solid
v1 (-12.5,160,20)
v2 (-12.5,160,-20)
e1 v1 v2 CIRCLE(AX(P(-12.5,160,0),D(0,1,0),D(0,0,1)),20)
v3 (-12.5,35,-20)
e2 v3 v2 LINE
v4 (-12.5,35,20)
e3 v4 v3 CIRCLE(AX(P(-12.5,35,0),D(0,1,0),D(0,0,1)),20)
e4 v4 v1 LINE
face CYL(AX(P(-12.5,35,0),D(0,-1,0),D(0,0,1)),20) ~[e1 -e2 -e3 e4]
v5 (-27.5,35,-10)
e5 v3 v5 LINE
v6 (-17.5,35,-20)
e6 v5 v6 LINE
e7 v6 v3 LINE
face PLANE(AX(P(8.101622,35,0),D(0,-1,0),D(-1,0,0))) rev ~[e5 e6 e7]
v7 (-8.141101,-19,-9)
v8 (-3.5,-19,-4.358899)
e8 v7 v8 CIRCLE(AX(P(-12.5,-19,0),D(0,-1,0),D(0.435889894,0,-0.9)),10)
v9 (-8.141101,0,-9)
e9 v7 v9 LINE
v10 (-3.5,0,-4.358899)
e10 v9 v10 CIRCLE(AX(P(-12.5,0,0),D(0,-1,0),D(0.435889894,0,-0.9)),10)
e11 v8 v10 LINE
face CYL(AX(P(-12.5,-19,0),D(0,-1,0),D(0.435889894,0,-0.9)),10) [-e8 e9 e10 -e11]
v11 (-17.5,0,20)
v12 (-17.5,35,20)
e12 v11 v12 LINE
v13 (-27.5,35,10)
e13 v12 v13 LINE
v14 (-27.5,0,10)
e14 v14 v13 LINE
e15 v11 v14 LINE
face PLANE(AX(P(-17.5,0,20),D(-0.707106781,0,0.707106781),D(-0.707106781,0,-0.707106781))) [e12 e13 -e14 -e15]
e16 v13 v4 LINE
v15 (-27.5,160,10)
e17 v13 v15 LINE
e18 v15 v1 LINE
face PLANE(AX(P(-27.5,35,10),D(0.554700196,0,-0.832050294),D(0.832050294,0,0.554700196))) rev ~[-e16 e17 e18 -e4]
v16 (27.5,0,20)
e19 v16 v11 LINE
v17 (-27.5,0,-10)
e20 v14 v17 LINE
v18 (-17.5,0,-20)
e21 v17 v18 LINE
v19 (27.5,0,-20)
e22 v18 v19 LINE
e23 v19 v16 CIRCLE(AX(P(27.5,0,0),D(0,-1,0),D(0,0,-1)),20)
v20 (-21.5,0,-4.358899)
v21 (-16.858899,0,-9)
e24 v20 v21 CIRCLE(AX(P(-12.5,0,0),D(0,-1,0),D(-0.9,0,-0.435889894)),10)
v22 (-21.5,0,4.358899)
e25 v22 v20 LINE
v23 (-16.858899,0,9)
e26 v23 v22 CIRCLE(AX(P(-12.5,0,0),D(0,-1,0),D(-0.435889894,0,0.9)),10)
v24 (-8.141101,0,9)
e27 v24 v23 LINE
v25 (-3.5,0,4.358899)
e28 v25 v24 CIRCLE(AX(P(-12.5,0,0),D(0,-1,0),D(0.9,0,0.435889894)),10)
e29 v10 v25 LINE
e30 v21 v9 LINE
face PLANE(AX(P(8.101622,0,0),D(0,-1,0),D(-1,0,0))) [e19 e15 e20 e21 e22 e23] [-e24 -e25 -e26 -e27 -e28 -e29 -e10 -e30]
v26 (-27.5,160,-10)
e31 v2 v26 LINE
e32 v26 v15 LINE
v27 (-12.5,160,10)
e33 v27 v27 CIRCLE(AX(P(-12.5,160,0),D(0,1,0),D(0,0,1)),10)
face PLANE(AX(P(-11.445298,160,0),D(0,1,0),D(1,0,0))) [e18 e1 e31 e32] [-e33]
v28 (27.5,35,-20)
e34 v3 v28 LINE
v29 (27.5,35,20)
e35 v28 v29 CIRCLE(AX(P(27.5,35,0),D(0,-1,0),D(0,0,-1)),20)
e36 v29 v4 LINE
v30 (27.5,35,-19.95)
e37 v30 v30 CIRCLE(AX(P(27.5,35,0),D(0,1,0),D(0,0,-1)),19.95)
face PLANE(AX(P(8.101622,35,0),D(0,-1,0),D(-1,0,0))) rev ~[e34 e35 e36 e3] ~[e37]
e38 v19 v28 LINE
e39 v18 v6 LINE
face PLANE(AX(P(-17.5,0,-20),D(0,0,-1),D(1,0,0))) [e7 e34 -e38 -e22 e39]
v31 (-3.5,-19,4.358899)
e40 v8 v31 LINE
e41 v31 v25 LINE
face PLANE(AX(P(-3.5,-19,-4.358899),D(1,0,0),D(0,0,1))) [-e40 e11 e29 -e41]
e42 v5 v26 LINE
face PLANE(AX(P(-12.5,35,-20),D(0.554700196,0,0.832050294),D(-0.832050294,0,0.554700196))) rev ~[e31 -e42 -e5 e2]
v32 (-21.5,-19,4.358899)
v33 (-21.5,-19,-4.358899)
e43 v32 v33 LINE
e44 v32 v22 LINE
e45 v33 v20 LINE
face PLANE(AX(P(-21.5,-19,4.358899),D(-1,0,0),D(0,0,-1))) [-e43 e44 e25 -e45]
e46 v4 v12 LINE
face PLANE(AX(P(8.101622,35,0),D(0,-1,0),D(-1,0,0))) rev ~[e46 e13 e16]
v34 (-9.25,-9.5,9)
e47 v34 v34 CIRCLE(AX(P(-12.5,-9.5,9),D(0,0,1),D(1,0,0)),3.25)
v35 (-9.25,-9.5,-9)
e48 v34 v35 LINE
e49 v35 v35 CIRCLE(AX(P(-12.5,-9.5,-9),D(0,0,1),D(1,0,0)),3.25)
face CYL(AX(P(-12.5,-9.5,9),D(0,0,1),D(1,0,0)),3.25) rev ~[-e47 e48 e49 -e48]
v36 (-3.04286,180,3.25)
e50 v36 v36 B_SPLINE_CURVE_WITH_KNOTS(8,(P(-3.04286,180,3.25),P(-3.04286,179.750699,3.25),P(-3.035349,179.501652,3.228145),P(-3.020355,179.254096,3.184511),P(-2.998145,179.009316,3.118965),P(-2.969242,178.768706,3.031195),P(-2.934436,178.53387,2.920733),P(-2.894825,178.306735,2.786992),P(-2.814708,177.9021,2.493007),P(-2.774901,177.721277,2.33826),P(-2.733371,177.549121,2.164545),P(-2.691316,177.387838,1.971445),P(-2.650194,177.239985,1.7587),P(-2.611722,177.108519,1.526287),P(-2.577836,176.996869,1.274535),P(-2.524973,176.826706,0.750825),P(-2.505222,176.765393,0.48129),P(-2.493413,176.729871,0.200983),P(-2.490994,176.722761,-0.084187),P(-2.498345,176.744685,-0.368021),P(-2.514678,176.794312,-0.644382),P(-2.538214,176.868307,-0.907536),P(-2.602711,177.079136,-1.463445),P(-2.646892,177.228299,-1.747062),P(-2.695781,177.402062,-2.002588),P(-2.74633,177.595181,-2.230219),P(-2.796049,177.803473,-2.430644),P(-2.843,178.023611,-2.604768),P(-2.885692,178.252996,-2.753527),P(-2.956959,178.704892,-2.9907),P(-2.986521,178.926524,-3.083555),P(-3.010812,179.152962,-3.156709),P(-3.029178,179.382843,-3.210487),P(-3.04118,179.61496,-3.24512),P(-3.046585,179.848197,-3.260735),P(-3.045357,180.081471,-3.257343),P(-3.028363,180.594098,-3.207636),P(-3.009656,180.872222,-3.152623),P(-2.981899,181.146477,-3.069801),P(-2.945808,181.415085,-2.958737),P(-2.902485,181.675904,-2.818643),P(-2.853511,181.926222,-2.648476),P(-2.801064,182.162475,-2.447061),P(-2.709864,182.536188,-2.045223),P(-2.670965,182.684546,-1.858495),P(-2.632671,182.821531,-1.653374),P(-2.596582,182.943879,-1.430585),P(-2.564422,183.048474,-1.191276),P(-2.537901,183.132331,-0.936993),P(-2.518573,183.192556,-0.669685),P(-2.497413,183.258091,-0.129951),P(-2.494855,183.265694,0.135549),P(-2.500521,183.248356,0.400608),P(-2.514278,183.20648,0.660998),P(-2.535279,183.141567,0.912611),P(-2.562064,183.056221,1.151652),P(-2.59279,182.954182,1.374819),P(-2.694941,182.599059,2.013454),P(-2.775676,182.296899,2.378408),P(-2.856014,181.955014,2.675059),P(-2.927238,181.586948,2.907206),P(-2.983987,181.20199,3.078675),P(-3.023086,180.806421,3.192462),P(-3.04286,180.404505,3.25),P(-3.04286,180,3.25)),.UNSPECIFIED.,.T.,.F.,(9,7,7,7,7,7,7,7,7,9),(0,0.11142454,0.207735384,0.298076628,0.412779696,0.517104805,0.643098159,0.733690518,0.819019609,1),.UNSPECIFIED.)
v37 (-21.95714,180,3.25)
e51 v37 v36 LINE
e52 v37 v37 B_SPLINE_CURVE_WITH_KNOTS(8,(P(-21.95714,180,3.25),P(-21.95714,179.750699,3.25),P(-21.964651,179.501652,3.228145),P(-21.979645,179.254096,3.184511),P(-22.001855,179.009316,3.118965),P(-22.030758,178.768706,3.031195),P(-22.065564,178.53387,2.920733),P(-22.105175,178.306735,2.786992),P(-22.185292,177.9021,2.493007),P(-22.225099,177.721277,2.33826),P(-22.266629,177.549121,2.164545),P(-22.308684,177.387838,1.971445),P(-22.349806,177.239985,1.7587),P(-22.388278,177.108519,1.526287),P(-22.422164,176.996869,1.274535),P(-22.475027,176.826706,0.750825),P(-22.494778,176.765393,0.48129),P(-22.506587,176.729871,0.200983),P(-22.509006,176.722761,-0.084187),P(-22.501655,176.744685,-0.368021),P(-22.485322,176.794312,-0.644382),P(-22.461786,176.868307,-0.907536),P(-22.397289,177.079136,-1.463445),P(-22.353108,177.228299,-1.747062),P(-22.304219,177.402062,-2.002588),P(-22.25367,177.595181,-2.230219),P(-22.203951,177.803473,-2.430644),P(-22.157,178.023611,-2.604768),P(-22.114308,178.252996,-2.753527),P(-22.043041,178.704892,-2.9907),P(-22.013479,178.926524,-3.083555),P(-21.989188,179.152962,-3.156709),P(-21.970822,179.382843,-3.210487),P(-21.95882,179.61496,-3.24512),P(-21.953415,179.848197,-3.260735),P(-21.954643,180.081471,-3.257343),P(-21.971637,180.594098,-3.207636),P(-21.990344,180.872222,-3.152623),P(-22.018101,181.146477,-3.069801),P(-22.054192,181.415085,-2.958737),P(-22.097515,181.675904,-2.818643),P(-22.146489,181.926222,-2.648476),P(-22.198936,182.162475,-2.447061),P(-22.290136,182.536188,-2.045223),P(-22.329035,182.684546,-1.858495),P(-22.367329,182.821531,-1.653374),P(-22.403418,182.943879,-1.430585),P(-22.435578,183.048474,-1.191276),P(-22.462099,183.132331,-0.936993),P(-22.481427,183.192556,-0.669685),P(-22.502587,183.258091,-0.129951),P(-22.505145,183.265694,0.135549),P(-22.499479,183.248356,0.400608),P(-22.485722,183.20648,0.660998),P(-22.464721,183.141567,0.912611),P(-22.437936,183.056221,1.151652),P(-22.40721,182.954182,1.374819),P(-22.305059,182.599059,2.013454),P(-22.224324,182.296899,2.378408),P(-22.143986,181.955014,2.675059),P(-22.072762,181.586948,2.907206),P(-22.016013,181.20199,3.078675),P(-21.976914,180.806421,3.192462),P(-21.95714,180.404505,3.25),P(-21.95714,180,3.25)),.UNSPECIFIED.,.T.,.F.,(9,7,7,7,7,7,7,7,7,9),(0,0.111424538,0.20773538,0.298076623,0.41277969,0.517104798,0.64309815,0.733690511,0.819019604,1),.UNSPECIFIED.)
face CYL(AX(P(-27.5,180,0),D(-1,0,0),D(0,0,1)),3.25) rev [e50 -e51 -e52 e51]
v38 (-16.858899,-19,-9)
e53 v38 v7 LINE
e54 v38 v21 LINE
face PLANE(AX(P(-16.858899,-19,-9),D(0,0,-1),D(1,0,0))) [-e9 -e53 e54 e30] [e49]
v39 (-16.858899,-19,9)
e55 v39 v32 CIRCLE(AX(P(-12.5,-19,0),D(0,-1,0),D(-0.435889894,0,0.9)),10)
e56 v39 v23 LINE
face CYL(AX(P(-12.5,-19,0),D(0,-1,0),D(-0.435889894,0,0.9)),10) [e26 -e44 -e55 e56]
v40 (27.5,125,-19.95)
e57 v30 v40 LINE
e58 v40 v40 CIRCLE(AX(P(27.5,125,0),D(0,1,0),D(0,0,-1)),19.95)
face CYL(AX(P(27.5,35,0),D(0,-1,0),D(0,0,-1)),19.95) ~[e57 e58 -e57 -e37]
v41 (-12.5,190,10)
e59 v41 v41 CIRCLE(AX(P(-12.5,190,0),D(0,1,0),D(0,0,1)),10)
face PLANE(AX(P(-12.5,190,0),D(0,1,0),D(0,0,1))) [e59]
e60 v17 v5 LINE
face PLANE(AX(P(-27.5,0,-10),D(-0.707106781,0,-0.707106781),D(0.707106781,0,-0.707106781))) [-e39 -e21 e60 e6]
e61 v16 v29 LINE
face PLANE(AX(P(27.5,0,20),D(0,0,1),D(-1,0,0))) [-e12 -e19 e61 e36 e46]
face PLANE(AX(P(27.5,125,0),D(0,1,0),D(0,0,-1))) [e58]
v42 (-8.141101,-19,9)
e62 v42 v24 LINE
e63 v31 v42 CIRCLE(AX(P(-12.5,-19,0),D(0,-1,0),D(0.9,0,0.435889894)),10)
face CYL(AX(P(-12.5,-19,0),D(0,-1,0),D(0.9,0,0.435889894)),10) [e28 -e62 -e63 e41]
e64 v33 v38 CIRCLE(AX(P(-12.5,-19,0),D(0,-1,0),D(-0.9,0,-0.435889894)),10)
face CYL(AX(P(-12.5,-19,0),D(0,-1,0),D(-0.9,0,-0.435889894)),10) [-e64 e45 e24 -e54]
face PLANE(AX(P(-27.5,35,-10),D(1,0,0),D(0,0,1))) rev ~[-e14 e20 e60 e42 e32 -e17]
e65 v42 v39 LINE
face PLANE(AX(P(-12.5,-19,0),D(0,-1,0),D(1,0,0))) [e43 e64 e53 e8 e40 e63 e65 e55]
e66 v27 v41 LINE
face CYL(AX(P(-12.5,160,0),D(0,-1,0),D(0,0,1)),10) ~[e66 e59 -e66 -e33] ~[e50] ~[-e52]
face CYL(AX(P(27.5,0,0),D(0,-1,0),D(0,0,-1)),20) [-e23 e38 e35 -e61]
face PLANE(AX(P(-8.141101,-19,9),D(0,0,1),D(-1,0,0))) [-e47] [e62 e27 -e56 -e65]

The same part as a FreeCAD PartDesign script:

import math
import FreeCAD as App
import Part
import Sketcher

doc = App.newDocument("Part")
body = doc.addObject("PartDesign::Body", "Body")

sketch1 = body.newObject("Sketcher::SketchObject", "Sketch")
sketch1.AttachmentSupport = (doc.getObject("XZ_Plane"), [""])
sketch1.MapMode = "FlatFace"
sketch1.addGeometry([
    Part.LineSegment(App.Vector(-18, -20, 0), App.Vector(-28, -10, 0)),
    Part.LineSegment(App.Vector(-28, -10, 0), App.Vector(-28, 10, 0)),
    Part.LineSegment(App.Vector(-28, 10, 0), App.Vector(-18, 20, 0)),
    Part.LineSegment(App.Vector(-18, 20, 0), App.Vector(28, 20, 0)),
    Part.ArcOfCircle(Part.Circle(App.Vector(28, 0, 0), App.Vector(0, 0, 1), 20), math.radians(-90), math.radians(90)),
    Part.LineSegment(App.Vector(28, -20, 0), App.Vector(-18, -20, 0)),
], False)
sketch1.addConstraint([
    Sketcher.Constraint("Coincident", 0, 2, 1, 1),
    Sketcher.Constraint("Coincident", 1, 2, 2, 1),
    Sketcher.Constraint("Coincident", 2, 2, 3, 1),
    Sketcher.Constraint("Tangent", 3, 2, 4, 2),
    Sketcher.Constraint("Tangent", 4, 1, 5, 1),
    Sketcher.Constraint("Coincident", 5, 2, 0, 1),
    Sketcher.Constraint("Vertical", 1),
    Sketcher.Constraint("Horizontal", 3),
    Sketcher.Constraint("Horizontal", 5),
    Sketcher.Constraint("Symmetric", 2, 2, 5, 2, -1),
    Sketcher.Constraint("Perpendicular", 0, 2),
    Sketcher.Constraint("Equal", 0, 2),
    Sketcher.Constraint("Radius", 4, 20.0),
    Sketcher.Constraint("DistanceX", 3, 1, 3, 2, 45.0),
    Sketcher.Constraint("DistanceY", 1, 1, 1, 2, 20.0),
    Sketcher.Constraint("DistanceX", -1, 1, 4, 3, 27.5),
])
pad1 = body.newObject("PartDesign::Pad", "Pad")
pad1.Profile = sketch1
pad1.Length = 35
pad1.Reversed = True

sketch2 = body.newObject("Sketcher::SketchObject", "Sketch001")
sketch2.AttachmentSupport = (doc.getObject("XZ_Plane"), [""])
sketch2.MapMode = "FlatFace"
sketch2.AttachmentOffset = App.Placement(App.Vector(0, 0, -35), App.Rotation())
sketch2.addGeometry([
    Part.LineSegment(App.Vector(-12, -20, 0), App.Vector(-28, -10, 0)),
    Part.LineSegment(App.Vector(-28, -10, 0), App.Vector(-28, 10, 0)),
    Part.LineSegment(App.Vector(-28, 10, 0), App.Vector(-12, 20, 0)),
    Part.ArcOfCircle(Part.Circle(App.Vector(-12, 0, 0), App.Vector(0, 0, 1), 20), math.radians(-90), math.radians(90)),
], False)
sketch2.addConstraint([
    Sketcher.Constraint("Coincident", 0, 2, 1, 1),
    Sketcher.Constraint("Coincident", 1, 2, 2, 1),
    Sketcher.Constraint("Coincident", 2, 2, 3, 2),
    Sketcher.Constraint("Coincident", 3, 1, 0, 1),
    Sketcher.Constraint("Vertical", 1),
    Sketcher.Constraint("Symmetric", 2, 2, 3, 1, -1),
    Sketcher.Constraint("Vertical", 3, 3, 2, 2),
    Sketcher.Constraint("Equal", 0, 2),
    Sketcher.Constraint("Radius", 3, 20.0),
    Sketcher.Constraint("DistanceY", 1, 1, 1, 2, 20.0),
    Sketcher.Constraint("DistanceX", 0, 2, 3, 3, 15.0),
    Sketcher.Constraint("DistanceX", 3, 3, -1, 1, 12.5),
])
pad2 = body.newObject("PartDesign::Pad", "Pad001")
pad2.Profile = sketch2
pad2.Length = 125
pad2.Reversed = True

sketch3 = body.newObject("Sketcher::SketchObject", "Sketch002")
sketch3.AttachmentSupport = (doc.getObject("XZ_Plane"), [""])
sketch3.MapMode = "FlatFace"
sketch3.AttachmentOffset = App.Placement(App.Vector(0, 0, -35), App.Rotation())
sketch3.addGeometry(Part.Circle(App.Vector(28, 0, 0), App.Vector(0, 0, 1), 20), False)
sketch3.addConstraint([
    Sketcher.Constraint("PointOnObject", 0, 3, -1),
    Sketcher.Constraint("Diameter", 0, 39.9),
    Sketcher.Constraint("DistanceX", -1, 1, 0, 3, 27.5),
])
pad3 = body.newObject("PartDesign::Pad", "Pad002")
pad3.Profile = sketch3
pad3.Length = 90
pad3.Reversed = True

sketch4 = body.newObject("Sketcher::SketchObject", "Sketch003")
sketch4.AttachmentSupport = (doc.getObject("XZ_Plane"), [""])
sketch4.MapMode = "FlatFace"
sketch4.AttachmentOffset = App.Placement(App.Vector(0, 0, -160), App.Rotation())
sketch4.addGeometry(Part.Circle(App.Vector(-12, 0, 0), App.Vector(0, 0, 1), 10), False)
sketch4.addConstraint([
    Sketcher.Constraint("PointOnObject", 0, 3, -1),
    Sketcher.Constraint("Diameter", 0, 20.0),
    Sketcher.Constraint("DistanceX", 0, 3, -1, 1, 12.5),
])
pad4 = body.newObject("PartDesign::Pad", "Pad003")
pad4.Profile = sketch4
pad4.Length = 30
pad4.Reversed = True

sketch5 = body.newObject("Sketcher::SketchObject", "Sketch004")
sketch5.AttachmentSupport = (doc.getObject("YZ_Plane"), [""])
sketch5.MapMode = "FlatFace"
sketch5.AttachmentOffset = App.Placement(App.Vector(0, 0, -27.5), App.Rotation())
sketch5.addGeometry(Part.Circle(App.Vector(180, 0, 0), App.Vector(0, 0, 1), 3.2), False)
sketch5.addConstraint([
    Sketcher.Constraint("PointOnObject", 0, 3, -1),
    Sketcher.Constraint("Diameter", 0, 6.5),
    Sketcher.Constraint("DistanceX", -1, 1, 0, 3, 180.0),
])
pocket1 = body.newObject("PartDesign::Pocket", "Pocket")
pocket1.Profile = sketch5
pocket1.Length = 30
pocket1.Reversed = True

sketch6 = body.newObject("Sketcher::SketchObject", "Sketch005")
sketch6.AttachmentSupport = (doc.getObject("XZ_Plane"), [""])
sketch6.MapMode = "FlatFace"
sketch6.AttachmentOffset = App.Placement(App.Vector(0, 0, 19), App.Rotation())
sketch6.addGeometry([
    Part.LineSegment(App.Vector(-17, -9, 0), App.Vector(-8, -9, 0)),
    Part.ArcOfCircle(Part.Circle(App.Vector(-12, 0, 0), App.Vector(0, 0, 1), 10), math.radians(-64), math.radians(-26)),
    Part.LineSegment(App.Vector(-4, -4, 0), App.Vector(-4, 4, 0)),
    Part.ArcOfCircle(Part.Circle(App.Vector(-12, 0, 0), App.Vector(0, 0, 1), 10), math.radians(26), math.radians(64)),
    Part.LineSegment(App.Vector(-8, 9, 0), App.Vector(-17, 9, 0)),
    Part.ArcOfCircle(Part.Circle(App.Vector(-12, 0, 0), App.Vector(0, 0, 1), 10), math.radians(116), math.radians(154)),
    Part.LineSegment(App.Vector(-22, 4, 0), App.Vector(-22, -4, 0)),
    Part.ArcOfCircle(Part.Circle(App.Vector(-12, 0, 0), App.Vector(0, 0, 1), 10), math.radians(-154), math.radians(-116)),
], False)
sketch6.addConstraint([
    Sketcher.Constraint("Coincident", 0, 2, 1, 1),
    Sketcher.Constraint("Coincident", 1, 2, 2, 1),
    Sketcher.Constraint("Coincident", 2, 2, 3, 1),
    Sketcher.Constraint("Coincident", 3, 2, 4, 1),
    Sketcher.Constraint("Coincident", 4, 2, 5, 1),
    Sketcher.Constraint("Coincident", 5, 2, 6, 1),
    Sketcher.Constraint("Coincident", 6, 2, 7, 1),
    Sketcher.Constraint("Coincident", 7, 2, 0, 1),
    Sketcher.Constraint("Horizontal", 0),
    Sketcher.Constraint("Vertical", 2),
    Sketcher.Constraint("Horizontal", 4),
    Sketcher.Constraint("Vertical", 6),
    Sketcher.Constraint("Coincident", 3, 3, 1, 3),
    Sketcher.Constraint("Coincident", 5, 3, 1, 3),
    Sketcher.Constraint("Coincident", 7, 3, 1, 3),
    Sketcher.Constraint("Equal", 1, 3),
    Sketcher.Constraint("Equal", 3, 5),
    Sketcher.Constraint("Equal", 5, 7),
    Sketcher.Constraint("Symmetric", 0, 2, 3, 2, -1),
    Sketcher.Constraint("Horizontal", 2, 2, 5, 2),
    Sketcher.Constraint("Equal", 4, 2),
    Sketcher.Constraint("Radius", 1, 10.0),
    Sketcher.Constraint("DistanceY", 0, 2, -1, 1, 9.0),
    Sketcher.Constraint("DistanceX", 1, 3, -1, 1, 12.5),
])
pad5 = body.newObject("PartDesign::Pad", "Pad004")
pad5.Profile = sketch6
pad5.Length = 19
pad5.Reversed = True

sketch7 = body.newObject("Sketcher::SketchObject", "Sketch006")
sketch7.AttachmentSupport = (doc.getObject("XY_Plane"), [""])
sketch7.MapMode = "FlatFace"
sketch7.AttachmentOffset = App.Placement(App.Vector(0, 0, 9), App.Rotation())
sketch7.addGeometry(Part.Circle(App.Vector(-12.5, -9.5, 0), App.Vector(0, 0, 1), 3.2), False)
sketch7.addConstraint([
    Sketcher.Constraint("Diameter", 0, 6.5),
    Sketcher.Constraint("DistanceX", 0, 3, -1, 1, 12.5),
    Sketcher.Constraint("DistanceY", 0, 3, -1, 1, 9.5),
])
pocket2 = body.newObject("PartDesign::Pocket", "Pocket001")
pocket2.Profile = sketch7
pocket2.Type = "UpToFirst"

doc.recompute()
